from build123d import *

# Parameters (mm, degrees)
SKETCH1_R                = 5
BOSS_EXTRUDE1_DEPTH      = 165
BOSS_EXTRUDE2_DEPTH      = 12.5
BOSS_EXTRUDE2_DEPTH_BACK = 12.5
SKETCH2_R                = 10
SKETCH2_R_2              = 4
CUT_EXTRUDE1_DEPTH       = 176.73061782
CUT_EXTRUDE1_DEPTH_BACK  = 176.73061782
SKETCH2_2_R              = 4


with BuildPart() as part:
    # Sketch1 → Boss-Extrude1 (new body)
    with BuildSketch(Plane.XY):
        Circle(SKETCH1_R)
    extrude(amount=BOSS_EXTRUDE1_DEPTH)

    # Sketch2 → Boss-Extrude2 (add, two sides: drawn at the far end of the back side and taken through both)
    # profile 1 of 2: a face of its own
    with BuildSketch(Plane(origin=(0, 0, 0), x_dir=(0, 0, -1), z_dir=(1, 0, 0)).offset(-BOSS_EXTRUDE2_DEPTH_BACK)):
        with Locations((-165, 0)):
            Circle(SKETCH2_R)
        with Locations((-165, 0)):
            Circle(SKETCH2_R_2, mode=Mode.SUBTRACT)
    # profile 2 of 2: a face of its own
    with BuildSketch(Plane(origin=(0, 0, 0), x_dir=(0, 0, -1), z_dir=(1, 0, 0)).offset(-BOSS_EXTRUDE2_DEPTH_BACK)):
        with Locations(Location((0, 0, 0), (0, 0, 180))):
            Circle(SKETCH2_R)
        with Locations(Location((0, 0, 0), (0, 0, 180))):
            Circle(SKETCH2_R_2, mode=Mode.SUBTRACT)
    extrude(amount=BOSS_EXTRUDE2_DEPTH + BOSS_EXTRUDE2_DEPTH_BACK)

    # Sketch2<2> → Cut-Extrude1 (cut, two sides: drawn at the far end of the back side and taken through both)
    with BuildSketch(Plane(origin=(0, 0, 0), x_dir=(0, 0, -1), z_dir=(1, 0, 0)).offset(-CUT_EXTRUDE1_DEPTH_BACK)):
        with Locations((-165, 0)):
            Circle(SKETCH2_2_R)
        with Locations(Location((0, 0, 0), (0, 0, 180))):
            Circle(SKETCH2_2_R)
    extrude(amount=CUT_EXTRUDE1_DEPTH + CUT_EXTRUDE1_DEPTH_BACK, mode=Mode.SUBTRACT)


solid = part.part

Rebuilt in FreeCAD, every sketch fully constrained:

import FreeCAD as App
import Part
import Sketcher
Q = App.Units.Quantity

doc = App.newDocument("Part")
params = doc.addObject("Spreadsheet::Sheet", "Params")
for row, (alias, value) in enumerate([
    ("sketch1_diameter", "10 mm"),
    ("pad1_length", "165 mm"),
    ("sketch2_diameter", "20 mm"),
    ("sketch2_diameter2", "8 mm"),
    ("pad2_length", "12.5 mm"),
    ("pad2_length2", "12.5 mm"),
    ("sketch3_diameter", "8 mm"),
], start=1):
    params.set(f"A{row}", alias)
    params.set(f"B{row}", "=" + value)
    params.setAlias(f"B{row}", alias)

body = doc.addObject("PartDesign::Body", "Body")

# Sketch on XY plane
sketch1 = body.newObject("Sketcher::SketchObject", "Sketch")
sketch1.AttachmentSupport = (doc.getObject("XY_Plane"), [""])
sketch1.MapMode = "FlatFace"
sketch1.addGeometry(Part.Circle(App.Vector(0, 0, 0), App.Vector(0, 0, 1), 5), False)
sketch1.addConstraint(Sketcher.Constraint("Coincident", 0, 3, -1, 1))
sketch1.addConstraint(Sketcher.Constraint("Diameter", 0, Q("10 mm")))
sketch1.setExpression("Constraints[1]", "Params.sketch1_diameter")
pad1 = body.newObject("PartDesign::Pad", "Pad")
pad1.Profile = sketch1
pad1.setExpression("Length", "Params.pad1_length")

# Sketch on YZ plane
sketch2 = body.newObject("Sketcher::SketchObject", "Sketch001")
sketch2.AttachmentSupport = (doc.getObject("YZ_Plane"), [""])
sketch2.MapMode = "FlatFace"
sketch2.addGeometry(Part.Circle(App.Vector(0, 165, 0), App.Vector(0, 0, 1), 10), False)
sketch2.addGeometry(Part.Circle(App.Vector(0, 165, 0), App.Vector(0, 0, 1), 4), False)
sketch2.addGeometry(Part.Circle(App.Vector(0, 0, 0), App.Vector(0, 0, 1), 10), False)
sketch2.addGeometry(Part.Circle(App.Vector(0, 0, 0), App.Vector(0, 0, 1), 4), False)
sketch2.addConstraint(Sketcher.Constraint("Coincident", 2, 3, -1, 1))
sketch2.addConstraint(Sketcher.Constraint("Coincident", 3, 3, -1, 1))
sketch2.addConstraint(Sketcher.Constraint("Coincident", 1, 3, 0, 3))
sketch2.addConstraint(Sketcher.Constraint("Equal", 0, 2))
sketch2.addConstraint(Sketcher.Constraint("Equal", 1, 3))
sketch2.addConstraint(Sketcher.Constraint("PointOnObject", 0, 3, -2))
sketch2.addConstraint(Sketcher.Constraint("Diameter", 0, Q("20 mm")))
sketch2.addConstraint(Sketcher.Constraint("Diameter", 1, Q("8 mm")))
sketch2.addConstraint(Sketcher.Constraint("DistanceY", -1, 1, 0, 3, Q("165 mm")))
sketch2.setExpression("Constraints[6]", "Params.sketch2_diameter")
sketch2.setExpression("Constraints[7]", "Params.sketch2_diameter2")
pad2 = body.newObject("PartDesign::Pad", "Pad001")
pad2.Profile = sketch2
pad2.Type = "TwoLengths"
pad2.setExpression("Length", "Params.pad2_length")
pad2.setExpression("Length2", "Params.pad2_length2")

# Sketch on YZ plane
sketch3 = body.newObject("Sketcher::SketchObject", "Sketch002")
sketch3.AttachmentSupport = (doc.getObject("YZ_Plane"), [""])
sketch3.MapMode = "FlatFace"
sketch3.addGeometry(Part.Circle(App.Vector(0, 165, 0), App.Vector(0, 0, 1), 4), False)
sketch3.addGeometry(Part.Circle(App.Vector(0, 0, 0), App.Vector(0, 0, 1), 4), False)
sketch3.addConstraint(Sketcher.Constraint("Coincident", 1, 3, -1, 1))
sketch3.addConstraint(Sketcher.Constraint("Equal", 0, 1))
sketch3.addConstraint(Sketcher.Constraint("PointOnObject", 0, 3, -2))
sketch3.addConstraint(Sketcher.Constraint("Diameter", 0, Q("8 mm")))
sketch3.addConstraint(Sketcher.Constraint("DistanceY", -1, 1, 0, 3, Q("165 mm")))
sketch3.setExpression("Constraints[3]", "Params.sketch3_diameter")
pocket1 = body.newObject("PartDesign::Pocket", "Pocket")
pocket1.Profile = sketch3
pocket1.Type = "ThroughAll"
pocket1.Midplane = True

doc.recompute()
